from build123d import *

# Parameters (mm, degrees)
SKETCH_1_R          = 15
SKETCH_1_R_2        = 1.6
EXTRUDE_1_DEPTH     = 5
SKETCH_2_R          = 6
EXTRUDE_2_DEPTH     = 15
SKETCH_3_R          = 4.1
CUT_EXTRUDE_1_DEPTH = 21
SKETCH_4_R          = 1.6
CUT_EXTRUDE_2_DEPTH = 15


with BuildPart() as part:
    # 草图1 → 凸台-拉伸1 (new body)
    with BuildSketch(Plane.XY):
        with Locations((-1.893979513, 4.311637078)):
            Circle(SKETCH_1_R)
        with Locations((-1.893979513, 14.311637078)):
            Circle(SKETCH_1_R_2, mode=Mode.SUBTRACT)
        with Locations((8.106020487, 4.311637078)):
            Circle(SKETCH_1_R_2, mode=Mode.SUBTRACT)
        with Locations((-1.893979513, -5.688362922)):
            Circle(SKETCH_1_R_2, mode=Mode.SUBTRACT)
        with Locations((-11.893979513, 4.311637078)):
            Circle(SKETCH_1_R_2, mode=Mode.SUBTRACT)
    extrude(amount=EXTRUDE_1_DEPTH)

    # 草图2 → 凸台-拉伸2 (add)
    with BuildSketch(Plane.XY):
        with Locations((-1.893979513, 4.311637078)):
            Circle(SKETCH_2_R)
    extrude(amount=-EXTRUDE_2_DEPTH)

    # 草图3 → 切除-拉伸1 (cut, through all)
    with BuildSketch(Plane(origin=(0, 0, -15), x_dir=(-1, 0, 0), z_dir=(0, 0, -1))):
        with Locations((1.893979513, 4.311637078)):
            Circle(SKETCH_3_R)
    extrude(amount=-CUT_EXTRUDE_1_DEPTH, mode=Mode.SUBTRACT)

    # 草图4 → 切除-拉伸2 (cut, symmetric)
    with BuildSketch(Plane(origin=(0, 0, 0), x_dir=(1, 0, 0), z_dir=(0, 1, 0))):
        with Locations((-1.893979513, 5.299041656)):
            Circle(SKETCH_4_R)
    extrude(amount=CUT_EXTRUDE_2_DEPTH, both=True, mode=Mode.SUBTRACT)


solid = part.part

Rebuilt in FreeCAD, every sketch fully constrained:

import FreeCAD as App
import Part
import Sketcher

doc = App.newDocument("Part")
body = doc.addObject("PartDesign::Body", "Body")

sketch1 = doc.addObject("Sketcher::SketchObject", "Sketch")
body.addObject(sketch1)
sketch1.AttachmentSupport = (doc.XY_Plane, [""])
sketch1.MapMode = "FlatFace"
sketch1.addGeometry(Part.Circle(App.Vector(-1.89398, 4.311637, 0), App.Vector(0, 0, 1), 15), False)
sketch1.addGeometry(Part.Circle(App.Vector(-1.89398, -5.688363, 0), App.Vector(0, 0, 1), 1.6), False)
sketch1.addGeometry(Part.Circle(App.Vector(-11.89398, 4.311637, 0), App.Vector(0, 0, 1), 1.6), False)
sketch1.addGeometry(Part.Circle(App.Vector(8.10602, 4.311637, 0), App.Vector(0, 0, 1), 1.6), False)
sketch1.addGeometry(Part.Circle(App.Vector(-1.89398, 14.311637, 0), App.Vector(0, 0, 1), 1.6), False)
sketch1.addConstraint(Sketcher.Constraint("Equal", 1, 2))
sketch1.addConstraint(Sketcher.Constraint("Equal", 2, 3))
sketch1.addConstraint(Sketcher.Constraint("Equal", 3, 4))
sketch1.addConstraint(Sketcher.Constraint("Horizontal", 0, 3, 2, 3))
sketch1.addConstraint(Sketcher.Constraint("Horizontal", 2, 3, 3, 3))
sketch1.addConstraint(Sketcher.Constraint("Vertical", 0, 3, 1, 3))
sketch1.addConstraint(Sketcher.Constraint("Vertical", 1, 3, 4, 3))
sketch1.addConstraint(Sketcher.Constraint("Diameter", 0, 30.0))
sketch1.addConstraint(Sketcher.Constraint("Diameter", 1, 3.2))
sketch1.addConstraint(Sketcher.Constraint("DistanceY", 1, 3, 0, 3, 10.0))
sketch1.addConstraint(Sketcher.Constraint("DistanceX", 2, 3, 0, 3, 10.0))
sketch1.addConstraint(Sketcher.Constraint("DistanceX", 0, 3, 3, 3, 10.0))
sketch1.addConstraint(Sketcher.Constraint("DistanceY", 0, 3, 4, 3, 10.0))
sketch1.addConstraint(Sketcher.Constraint("DistanceX", 0, 3, -1, 1, 1.89398))
sketch1.addConstraint(Sketcher.Constraint("DistanceY", -1, 1, 0, 3, 4.311637))
pad1 = doc.addObject("PartDesign::Pad", "Pad")
body.addObject(pad1)
pad1.Profile = sketch1
pad1.Length = 5

sketch2 = doc.addObject("Sketcher::SketchObject", "Sketch001")
body.addObject(sketch2)
sketch2.AttachmentSupport = (doc.XY_Plane, [""])
sketch2.MapMode = "FlatFace"
sketch2.addGeometry(Part.Circle(App.Vector(-1.89398, 4.311637, 0), App.Vector(0, 0, 1), 6), False)
sketch2.addConstraint(Sketcher.Constraint("Diameter", 0, 12.0))
sketch2.addConstraint(Sketcher.Constraint("DistanceX", 0, 3, -1, 1, 1.89398))
sketch2.addConstraint(Sketcher.Constraint("DistanceY", -1, 1, 0, 3, 4.311637))
pad2 = doc.addObject("PartDesign::Pad", "Pad001")
body.addObject(pad2)
pad2.Profile = sketch2
pad2.Length = 15
pad2.Reversed = True

sketch3 = doc.addObject("Sketcher::SketchObject", "Sketch002")
body.addObject(sketch3)
sketch3.AttachmentSupport = (doc.XY_Plane, [""])
sketch3.MapMode = "FlatFace"
sketch3.AttachmentOffset = App.Placement(App.Vector(0, 0, -15), App.Rotation())
sketch3.addGeometry(Part.Circle(App.Vector(-1.89398, 4.311637, 0), App.Vector(0, 0, 1), 4.1), False)
sketch3.addConstraint(Sketcher.Constraint("Diameter", 0, 8.2))
sketch3.addConstraint(Sketcher.Constraint("DistanceX", 0, 3, -1, 1, 1.89398))
sketch3.addConstraint(Sketcher.Constraint("DistanceY", -1, 1, 0, 3, 4.311637))
pocket1 = doc.addObject("PartDesign::Pocket", "Pocket")
body.addObject(pocket1)
pocket1.Profile = sketch3
pocket1.Type = "ThroughAll"
pocket1.Reversed = True

sketch4 = doc.addObject("Sketcher::SketchObject", "Sketch003")
body.addObject(sketch4)
sketch4.AttachmentSupport = (doc.XZ_Plane, [""])
sketch4.MapMode = "FlatFace"
sketch4.addGeometry(Part.Circle(App.Vector(-1.89398, -5.299042, 0), App.Vector(0, 0, 1), 1.6), False)
sketch4.addConstraint(Sketcher.Constraint("Diameter", 0, 3.2))
sketch4.addConstraint(Sketcher.Constraint("DistanceX", 0, 3, -1, 1, 1.89398))
sketch4.addConstraint(Sketcher.Constraint("DistanceY", 0, 3, -1, 1, 5.299042))
pocket2 = doc.addObject("PartDesign::Pocket", "Pocket001")
body.addObject(pocket2)
pocket2.Profile = sketch4
pocket2.Length = 30
pocket2.Midplane = True

doc.recompute()
